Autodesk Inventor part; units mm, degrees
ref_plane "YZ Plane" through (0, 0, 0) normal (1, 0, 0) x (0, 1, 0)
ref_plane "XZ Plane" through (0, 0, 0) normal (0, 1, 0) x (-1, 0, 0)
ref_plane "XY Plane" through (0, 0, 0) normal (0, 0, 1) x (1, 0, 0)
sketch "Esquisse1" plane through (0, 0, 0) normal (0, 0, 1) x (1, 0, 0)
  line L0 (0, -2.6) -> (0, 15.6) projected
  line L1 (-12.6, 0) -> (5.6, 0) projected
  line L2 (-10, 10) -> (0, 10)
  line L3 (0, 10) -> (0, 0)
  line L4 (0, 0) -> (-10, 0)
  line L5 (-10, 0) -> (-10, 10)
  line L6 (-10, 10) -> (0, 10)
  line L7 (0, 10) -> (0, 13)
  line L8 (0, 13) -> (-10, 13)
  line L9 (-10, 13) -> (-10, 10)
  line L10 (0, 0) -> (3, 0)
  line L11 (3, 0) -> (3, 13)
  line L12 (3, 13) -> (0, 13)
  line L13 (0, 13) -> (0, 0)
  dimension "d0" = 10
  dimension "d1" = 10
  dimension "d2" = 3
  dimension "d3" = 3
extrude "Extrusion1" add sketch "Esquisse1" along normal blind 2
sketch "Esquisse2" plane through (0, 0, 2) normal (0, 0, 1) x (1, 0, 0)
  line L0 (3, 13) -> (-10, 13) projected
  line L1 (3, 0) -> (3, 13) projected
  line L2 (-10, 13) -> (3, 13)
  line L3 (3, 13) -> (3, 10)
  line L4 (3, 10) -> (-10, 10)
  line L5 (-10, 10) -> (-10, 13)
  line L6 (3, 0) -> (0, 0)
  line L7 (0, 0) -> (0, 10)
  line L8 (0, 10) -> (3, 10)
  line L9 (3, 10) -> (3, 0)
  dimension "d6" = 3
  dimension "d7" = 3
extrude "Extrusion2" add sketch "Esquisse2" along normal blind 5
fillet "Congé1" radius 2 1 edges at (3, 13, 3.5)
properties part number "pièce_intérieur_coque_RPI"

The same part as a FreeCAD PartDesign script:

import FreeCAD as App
import Part
import Sketcher

V = App.Vector


def edges_at(feature, points):
    """Names of the edges that pass closest to the given points."""
    edges = feature.Shape.Edges
    near = lambda p: min(range(len(edges)), key=lambda i: edges[i].distToShape(Part.Vertex(*p))[0])
    return sorted({f"Edge{near(p) + 1}" for p in points})

doc = App.newDocument("Part")
body = doc.addObject("PartDesign::Body", "Body")

sketch1 = body.newObject("Sketcher::SketchObject", "Sketch")
sketch1.AttachmentSupport = (doc.getObject("XY_Plane"), [""])
sketch1.MapMode = "FlatFace"
sketch1.addGeometry([
    Part.LineSegment(V(-10, 0, 0), V(3, 0, 0)),
    Part.LineSegment(V(3, 0, 0), V(3, 13, 0)),
    Part.LineSegment(V(3, 13, 0), V(-10, 13, 0)),
    Part.LineSegment(V(-10, 13, 0), V(-10, 0, 0)),
], False)
sketch1.addConstraint([
    Sketcher.Constraint("Coincident", 0, 2, 1, 1),
    Sketcher.Constraint("Coincident", 1, 2, 2, 1),
    Sketcher.Constraint("Coincident", 2, 2, 3, 1),
    Sketcher.Constraint("Coincident", 3, 2, 0, 1),
    Sketcher.Constraint("Horizontal", 0),
    Sketcher.Constraint("Vertical", 1),
    Sketcher.Constraint("Horizontal", 2),
    Sketcher.Constraint("Vertical", 3),
    Sketcher.Constraint("PointOnObject", 0, 2, -1),
    Sketcher.Constraint("Equal", 2, 1),
    Sketcher.Constraint("DistanceX", -1, 1, 0, 2, 3.0),
    Sketcher.Constraint("DistanceX", 2, 2, -1, 1, 10.0),
])
pad1 = body.newObject("PartDesign::Pad", "Pad")
pad1.Profile = sketch1
pad1.Length = 2

sketch2 = body.newObject("Sketcher::SketchObject", "Sketch001")
sketch2.AttachmentSupport = (doc.getObject("XY_Plane"), [""])
sketch2.MapMode = "FlatFace"
sketch2.AttachmentOffset = App.Placement(V(0, 0, 2), App.Rotation())
sketch2.addGeometry([
    Part.LineSegment(V(3, 13, 0), V(-10, 13, 0)),
    Part.LineSegment(V(-10, 13, 0), V(-10, 10, 0)),
    Part.LineSegment(V(-10, 10, 0), V(0, 10, 0)),
    Part.LineSegment(V(0, 10, 0), V(0, 0, 0)),
    Part.LineSegment(V(0, 0, 0), V(3, 0, 0)),
    Part.LineSegment(V(3, 0, 0), V(3, 13, 0)),
], False)
sketch2.addConstraint([
    Sketcher.Constraint("Coincident", 0, 2, 1, 1),
    Sketcher.Constraint("Coincident", 1, 2, 2, 1),
    Sketcher.Constraint("Coincident", 2, 2, 3, 1),
    Sketcher.Constraint("Coincident", 3, 2, 4, 1),
    Sketcher.Constraint("Coincident", 4, 2, 5, 1),
    Sketcher.Constraint("Coincident", 5, 2, 0, 1),
    Sketcher.Constraint("Horizontal", 0),
    Sketcher.Constraint("Vertical", 1),
    Sketcher.Constraint("Horizontal", 2),
    Sketcher.Constraint("Vertical", 3),
    Sketcher.Constraint("Horizontal", 4),
    Sketcher.Constraint("Vertical", 5),
    Sketcher.Constraint("Coincident", 3, 2, -1, 1),
    Sketcher.Constraint("Equal", 4, 1),
    Sketcher.Constraint("Equal", 2, 3),
    Sketcher.Constraint("DistanceX", 4, 1, 4, 2, 3.0),
    Sketcher.Constraint("DistanceX", 0, 2, 0, 1, 13.0),
])
pad2 = body.newObject("PartDesign::Pad", "Pad001")
pad2.Profile = sketch2
pad2.Length = 5
doc.recompute()

fillet = body.newObject("PartDesign::Fillet", "Fillet")
fillet.Base = (pad2, edges_at(pad2, [(3, 13, 3.5)]))
fillet.Radius = 2

doc.recompute()
